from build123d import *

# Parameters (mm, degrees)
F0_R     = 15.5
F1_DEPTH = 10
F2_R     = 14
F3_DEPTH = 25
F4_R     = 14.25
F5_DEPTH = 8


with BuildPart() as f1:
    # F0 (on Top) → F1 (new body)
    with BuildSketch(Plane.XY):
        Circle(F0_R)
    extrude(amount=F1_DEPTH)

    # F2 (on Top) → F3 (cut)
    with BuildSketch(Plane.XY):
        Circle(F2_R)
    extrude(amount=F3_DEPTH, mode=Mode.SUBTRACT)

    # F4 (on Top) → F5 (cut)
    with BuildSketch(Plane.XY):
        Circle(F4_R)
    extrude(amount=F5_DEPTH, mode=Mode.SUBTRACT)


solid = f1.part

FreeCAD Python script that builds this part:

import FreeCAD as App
import Part
import Sketcher

V = App.Vector

doc = App.newDocument("Part")
body = doc.addObject("PartDesign::Body", "Body")

sketch1 = body.newObject("Sketcher::SketchObject", "Sketch")
sketch1.AttachmentSupport = (doc.getObject("XY_Plane"), [""])
sketch1.MapMode = "FlatFace"
sketch1.addGeometry(Part.Circle(V(0, 0, 0), V(0, 0, 1), 15.5), False)
sketch1.addConstraint([
    Sketcher.Constraint("Coincident", 0, 3, -1, 1),
    Sketcher.Constraint("Diameter", 0, 31.0),
])
pad1 = body.newObject("PartDesign::Pad", "Pad")
pad1.Profile = sketch1
pad1.Length = 10

sketch2 = body.newObject("Sketcher::SketchObject", "Sketch001")
sketch2.AttachmentSupport = (doc.getObject("XY_Plane"), [""])
sketch2.MapMode = "FlatFace"
sketch2.addGeometry(Part.Circle(V(0, 0, 0), V(0, 0, 1), 14), False)
sketch2.addConstraint([
    Sketcher.Constraint("Coincident", 0, 3, -1, 1),
    Sketcher.Constraint("Diameter", 0, 28.0),
])
pocket1 = body.newObject("PartDesign::Pocket", "Pocket")
pocket1.Profile = sketch2
pocket1.Length = 25
pocket1.Reversed = True

sketch3 = body.newObject("Sketcher::SketchObject", "Sketch002")
sketch3.AttachmentSupport = (doc.getObject("XY_Plane"), [""])
sketch3.MapMode = "FlatFace"
sketch3.addGeometry(Part.Circle(V(0, 0, 0), V(0, 0, 1), 14.25), False)
sketch3.addConstraint([
    Sketcher.Constraint("Coincident", 0, 3, -1, 1),
    Sketcher.Constraint("Diameter", 0, 28.5),
])
pocket2 = body.newObject("PartDesign::Pocket", "Pocket001")
pocket2.Profile = sketch3
pocket2.Length = 8
pocket2.Reversed = True

doc.recompute()
